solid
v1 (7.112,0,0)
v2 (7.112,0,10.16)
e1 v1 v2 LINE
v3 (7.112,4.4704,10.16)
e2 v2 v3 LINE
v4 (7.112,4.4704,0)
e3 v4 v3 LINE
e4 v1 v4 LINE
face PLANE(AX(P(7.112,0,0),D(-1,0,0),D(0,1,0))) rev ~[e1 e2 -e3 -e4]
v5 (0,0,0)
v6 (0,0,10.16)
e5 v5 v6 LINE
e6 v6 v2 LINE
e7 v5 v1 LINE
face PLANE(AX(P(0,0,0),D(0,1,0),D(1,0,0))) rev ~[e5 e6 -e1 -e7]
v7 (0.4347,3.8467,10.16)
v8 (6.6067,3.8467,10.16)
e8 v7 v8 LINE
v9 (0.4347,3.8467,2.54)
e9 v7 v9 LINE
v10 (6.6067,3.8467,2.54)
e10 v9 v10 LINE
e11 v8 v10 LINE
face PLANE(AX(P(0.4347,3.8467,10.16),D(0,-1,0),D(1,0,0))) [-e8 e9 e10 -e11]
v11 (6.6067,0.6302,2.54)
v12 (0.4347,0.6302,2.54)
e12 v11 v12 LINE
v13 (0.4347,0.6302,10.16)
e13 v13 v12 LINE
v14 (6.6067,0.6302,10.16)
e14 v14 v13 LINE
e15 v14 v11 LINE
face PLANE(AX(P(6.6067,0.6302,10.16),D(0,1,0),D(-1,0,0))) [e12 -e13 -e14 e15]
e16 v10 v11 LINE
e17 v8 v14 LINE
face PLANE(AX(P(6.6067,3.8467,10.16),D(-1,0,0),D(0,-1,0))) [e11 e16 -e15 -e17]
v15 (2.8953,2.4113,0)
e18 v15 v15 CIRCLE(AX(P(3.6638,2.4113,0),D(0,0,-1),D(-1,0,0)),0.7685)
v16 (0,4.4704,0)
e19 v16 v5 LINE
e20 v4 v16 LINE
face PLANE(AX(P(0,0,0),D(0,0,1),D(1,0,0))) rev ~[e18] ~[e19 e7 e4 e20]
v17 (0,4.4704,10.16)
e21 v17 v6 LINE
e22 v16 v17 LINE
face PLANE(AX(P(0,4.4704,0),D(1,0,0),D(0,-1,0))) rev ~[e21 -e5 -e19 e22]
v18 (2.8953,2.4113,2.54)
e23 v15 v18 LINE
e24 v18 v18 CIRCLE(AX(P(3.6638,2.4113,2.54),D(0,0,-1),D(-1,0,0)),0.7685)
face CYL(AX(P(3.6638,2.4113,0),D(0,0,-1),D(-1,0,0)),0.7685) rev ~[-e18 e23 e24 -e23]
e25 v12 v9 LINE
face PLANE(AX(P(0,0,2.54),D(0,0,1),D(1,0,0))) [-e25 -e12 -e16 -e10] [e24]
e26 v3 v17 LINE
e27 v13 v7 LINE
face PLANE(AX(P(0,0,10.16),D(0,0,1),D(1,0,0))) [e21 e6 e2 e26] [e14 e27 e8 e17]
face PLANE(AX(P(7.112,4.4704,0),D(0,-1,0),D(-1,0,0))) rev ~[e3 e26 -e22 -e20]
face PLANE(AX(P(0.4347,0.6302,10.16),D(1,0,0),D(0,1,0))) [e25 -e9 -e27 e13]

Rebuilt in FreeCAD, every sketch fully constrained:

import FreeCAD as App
import Part
import Sketcher
from FreeCAD import Vector
Q = App.Units.Quantity

doc = App.newDocument("Part")
body = doc.addObject("PartDesign::Body", "Body")

# Sketch on XY plane
sketch1 = body.newObject("Sketcher::SketchObject", "Sketch")
sketch1.AttachmentSupport = (doc.getObject("XY_Plane"), [""])
sketch1.MapMode = "FlatFace"
sketch1.addGeometry([
    Part.LineSegment(Vector(0, 4.5, 0), Vector(0, 0, 0)),
    Part.LineSegment(Vector(0, 0, 0), Vector(7.1, 0, 0)),
    Part.LineSegment(Vector(7.1, 0, 0), Vector(7.1, 4.5, 0)),
    Part.LineSegment(Vector(7.1, 4.5, 0), Vector(0, 4.5, 0)),
], False)
sketch1.addConstraint([
    Sketcher.Constraint("Coincident", 0, 2, 1, 1),
    Sketcher.Constraint("Coincident", 1, 2, 2, 1),
    Sketcher.Constraint("Coincident", 2, 2, 3, 1),
    Sketcher.Constraint("Coincident", 3, 2, 0, 1),
    Sketcher.Constraint("Vertical", 0),
    Sketcher.Constraint("Horizontal", 1),
    Sketcher.Constraint("Vertical", 2),
    Sketcher.Constraint("Horizontal", 3),
    Sketcher.Constraint("Coincident", 0, 2, -1, 1),
    Sketcher.Constraint("DistanceX", 1, 1, 1, 2, Q("0.28 in")),
    Sketcher.Constraint("DistanceY", 0, 2, 0, 1, Q("0.176 in")),
])
pad1 = body.newObject("PartDesign::Pad", "Pad")
pad1.Profile = sketch1
pad1.Length = Q("0.4 in")

# Sketch on XY plane
sketch2 = body.newObject("Sketcher::SketchObject", "Sketch001")
sketch2.AttachmentSupport = (doc.getObject("XY_Plane"), [""])
sketch2.MapMode = "FlatFace"
sketch2.AttachmentOffset = App.Placement(Vector(0, 0, 0.4 * 25.4), App.Rotation())
sketch2.addGeometry([
    Part.LineSegment(Vector(6.6, 3.8, 0), Vector(0.4, 3.8, 0)),
    Part.LineSegment(Vector(0.4, 3.8, 0), Vector(0.4, 0.6, 0)),
    Part.LineSegment(Vector(0.4, 0.6, 0), Vector(6.6, 0.6, 0)),
    Part.LineSegment(Vector(6.6, 0.6, 0), Vector(6.6, 3.8, 0)),
], False)
sketch2.addConstraint([
    Sketcher.Constraint("Coincident", 0, 2, 1, 1),
    Sketcher.Constraint("Coincident", 1, 2, 2, 1),
    Sketcher.Constraint("Coincident", 2, 2, 3, 1),
    Sketcher.Constraint("Coincident", 3, 2, 0, 1),
    Sketcher.Constraint("Horizontal", 0),
    Sketcher.Constraint("Vertical", 1),
    Sketcher.Constraint("Horizontal", 2),
    Sketcher.Constraint("Vertical", 3),
    Sketcher.Constraint("DistanceX", 0, 2, 0, 1, Q("0.243 in")),
    Sketcher.Constraint("DistanceY", 1, 2, 1, 1, Q("3.2165 mm")),
    Sketcher.Constraint("DistanceY", -1, 1, 1, 2, Q("0.0248 in")),
    Sketcher.Constraint("DistanceX", -1, 1, 2, 2, Q("0.2601 in")),
])
pocket1 = body.newObject("PartDesign::Pocket", "Pocket")
pocket1.Profile = sketch2
pocket1.Length = Q("0.3 in")

# Sketch on XY plane
sketch3 = body.newObject("Sketcher::SketchObject", "Sketch002")
sketch3.AttachmentSupport = (doc.getObject("XY_Plane"), [""])
sketch3.MapMode = "FlatFace"
sketch3.addGeometry(Part.Circle(Vector(3.7, 2.4, 0), Vector(0, 0, 1), 0.8), False)
sketch3.addConstraint([
    Sketcher.Constraint("Diameter", 0, Q("0.0605 in")),
    Sketcher.Constraint("DistanceX", -1, 1, 0, 3, Q("3.6638 mm")),
    Sketcher.Constraint("DistanceY", -1, 1, 0, 3, Q("2.4113 mm")),
])
pocket2 = body.newObject("PartDesign::Pocket", "Pocket001")
pocket2.Profile = sketch3
pocket2.Length = Q("0.1 in")
pocket2.Reversed = True

doc.recompute()
